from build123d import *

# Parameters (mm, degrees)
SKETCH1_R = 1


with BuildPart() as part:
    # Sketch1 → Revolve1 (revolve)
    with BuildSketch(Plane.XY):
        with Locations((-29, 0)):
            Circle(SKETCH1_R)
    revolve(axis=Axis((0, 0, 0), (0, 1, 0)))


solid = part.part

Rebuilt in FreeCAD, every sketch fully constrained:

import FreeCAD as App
import Part
import Sketcher

V = App.Vector
Q = App.Units.Quantity

doc = App.newDocument("Part")
body = doc.addObject("PartDesign::Body", "Body")

# Sketch on XY plane
sketch1 = doc.addObject("Sketcher::SketchObject", "Sketch")
body.addObject(sketch1)
sketch1.AttachmentSupport = (doc.XY_Plane, [""])
sketch1.MapMode = "FlatFace"
sketch1.addGeometry(Part.Circle(V(-29, 0, 0), V(0, 0, 1), 1), False)
sketch1.addConstraint([
    Sketcher.Constraint("PointOnObject", 0, 3, -1),
    Sketcher.Constraint("Diameter", 0, Q("2 mm")),
    Sketcher.Constraint("DistanceX", 0, 3, -1, 1, Q("29 mm")),
])
revolution = doc.addObject("PartDesign::Revolution", "Revolution")
body.addObject(revolution)
revolution.Profile = sketch1
revolution.ReferenceAxis = (sketch1, ["V_Axis"])
revolution.Angle = 360

doc.recompute()
